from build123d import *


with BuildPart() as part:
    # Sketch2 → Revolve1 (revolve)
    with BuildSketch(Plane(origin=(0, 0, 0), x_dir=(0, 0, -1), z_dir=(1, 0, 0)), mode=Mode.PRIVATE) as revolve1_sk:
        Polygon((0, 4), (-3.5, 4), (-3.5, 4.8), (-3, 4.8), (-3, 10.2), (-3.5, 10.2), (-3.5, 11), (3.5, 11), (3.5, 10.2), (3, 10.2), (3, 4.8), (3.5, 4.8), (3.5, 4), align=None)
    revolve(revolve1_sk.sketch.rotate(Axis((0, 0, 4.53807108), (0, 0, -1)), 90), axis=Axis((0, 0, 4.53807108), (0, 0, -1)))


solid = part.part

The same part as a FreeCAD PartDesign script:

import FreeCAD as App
import Part
import Sketcher

V = App.Vector
Q = App.Units.Quantity


def add_polygon(sketch, points):
    """Adds a closed chain of lines whose ends are joined by coincident constraints."""
    first, n = sketch.GeometryCount, len(points)
    for a, b in zip(points, points[1:] + points[:1]):
        sketch.addGeometry(Part.LineSegment(App.Vector(*a, 0), App.Vector(*b, 0)), False)
    for i in range(n):
        sketch.addConstraint(Sketcher.Constraint("Coincident", first + i, 2, first + (i + 1) % n, 1))

doc = App.newDocument("Part")
body = doc.addObject("PartDesign::Body", "Body")

sketch1 = body.newObject("Sketcher::SketchObject", "Sketch")
sketch1.AttachmentSupport = (doc.getObject("YZ_Plane"), [""])
sketch1.MapMode = "FlatFace"
add_polygon(sketch1, [(4, 3.5), (4, -3.5), (4.8, -3.5), (4.8, -3), (10.2, -3), (10.2, -3.5), (11, -3.5), (11, 3.5), (10.2, 3.5), (10.2, 3), (4.8, 3), (4.8, 3.5)])
sketch1.addConstraint(Sketcher.Constraint("Vertical", 0))
sketch1.addConstraint(Sketcher.Constraint("Horizontal", 1))
sketch1.addConstraint(Sketcher.Constraint("Vertical", 2))
sketch1.addConstraint(Sketcher.Constraint("Horizontal", 3))
sketch1.addConstraint(Sketcher.Constraint("Vertical", 4))
sketch1.addConstraint(Sketcher.Constraint("Horizontal", 5))
sketch1.addConstraint(Sketcher.Constraint("Vertical", 6))
sketch1.addConstraint(Sketcher.Constraint("Horizontal", 7))
sketch1.addConstraint(Sketcher.Constraint("Vertical", 8))
sketch1.addConstraint(Sketcher.Constraint("Horizontal", 9))
sketch1.addConstraint(Sketcher.Constraint("Vertical", 10))
sketch1.addConstraint(Sketcher.Constraint("Horizontal", 11))
sketch1.addConstraint(Sketcher.Constraint("Symmetric", 4, 2, 7, 2, -1))
sketch1.addConstraint(Sketcher.Constraint("Symmetric", 2, 2, 9, 2, -1))
sketch1.addConstraint(Sketcher.Constraint("Horizontal", 1, 2, 4, 2))
sketch1.addConstraint(Sketcher.Constraint("Horizontal", 7, 2, 10, 2))
sketch1.addConstraint(Sketcher.Constraint("Equal", 1, 5))
sketch1.addConstraint(Sketcher.Constraint("DistanceY", 0, 2, 0, 1, Q("7 mm")))
sketch1.addConstraint(Sketcher.Constraint("DistanceX", 1, 1, 1, 2, Q("0.8 mm")))
sketch1.addConstraint(Sketcher.Constraint("DistanceX", 3, 1, 3, 2, Q("5.4 mm")))
sketch1.addConstraint(Sketcher.Constraint("DistanceY", 2, 1, 2, 2, Q("0.5 mm")))
sketch1.addConstraint(Sketcher.Constraint("DistanceX", -1, 1, 0, 2, Q("4 mm")))
revolution = body.newObject("PartDesign::Revolution", "Revolution")
revolution.Profile = sketch1
revolution.ReferenceAxis = (sketch1, ["V_Axis"])
revolution.Angle = 360

doc.recompute()
